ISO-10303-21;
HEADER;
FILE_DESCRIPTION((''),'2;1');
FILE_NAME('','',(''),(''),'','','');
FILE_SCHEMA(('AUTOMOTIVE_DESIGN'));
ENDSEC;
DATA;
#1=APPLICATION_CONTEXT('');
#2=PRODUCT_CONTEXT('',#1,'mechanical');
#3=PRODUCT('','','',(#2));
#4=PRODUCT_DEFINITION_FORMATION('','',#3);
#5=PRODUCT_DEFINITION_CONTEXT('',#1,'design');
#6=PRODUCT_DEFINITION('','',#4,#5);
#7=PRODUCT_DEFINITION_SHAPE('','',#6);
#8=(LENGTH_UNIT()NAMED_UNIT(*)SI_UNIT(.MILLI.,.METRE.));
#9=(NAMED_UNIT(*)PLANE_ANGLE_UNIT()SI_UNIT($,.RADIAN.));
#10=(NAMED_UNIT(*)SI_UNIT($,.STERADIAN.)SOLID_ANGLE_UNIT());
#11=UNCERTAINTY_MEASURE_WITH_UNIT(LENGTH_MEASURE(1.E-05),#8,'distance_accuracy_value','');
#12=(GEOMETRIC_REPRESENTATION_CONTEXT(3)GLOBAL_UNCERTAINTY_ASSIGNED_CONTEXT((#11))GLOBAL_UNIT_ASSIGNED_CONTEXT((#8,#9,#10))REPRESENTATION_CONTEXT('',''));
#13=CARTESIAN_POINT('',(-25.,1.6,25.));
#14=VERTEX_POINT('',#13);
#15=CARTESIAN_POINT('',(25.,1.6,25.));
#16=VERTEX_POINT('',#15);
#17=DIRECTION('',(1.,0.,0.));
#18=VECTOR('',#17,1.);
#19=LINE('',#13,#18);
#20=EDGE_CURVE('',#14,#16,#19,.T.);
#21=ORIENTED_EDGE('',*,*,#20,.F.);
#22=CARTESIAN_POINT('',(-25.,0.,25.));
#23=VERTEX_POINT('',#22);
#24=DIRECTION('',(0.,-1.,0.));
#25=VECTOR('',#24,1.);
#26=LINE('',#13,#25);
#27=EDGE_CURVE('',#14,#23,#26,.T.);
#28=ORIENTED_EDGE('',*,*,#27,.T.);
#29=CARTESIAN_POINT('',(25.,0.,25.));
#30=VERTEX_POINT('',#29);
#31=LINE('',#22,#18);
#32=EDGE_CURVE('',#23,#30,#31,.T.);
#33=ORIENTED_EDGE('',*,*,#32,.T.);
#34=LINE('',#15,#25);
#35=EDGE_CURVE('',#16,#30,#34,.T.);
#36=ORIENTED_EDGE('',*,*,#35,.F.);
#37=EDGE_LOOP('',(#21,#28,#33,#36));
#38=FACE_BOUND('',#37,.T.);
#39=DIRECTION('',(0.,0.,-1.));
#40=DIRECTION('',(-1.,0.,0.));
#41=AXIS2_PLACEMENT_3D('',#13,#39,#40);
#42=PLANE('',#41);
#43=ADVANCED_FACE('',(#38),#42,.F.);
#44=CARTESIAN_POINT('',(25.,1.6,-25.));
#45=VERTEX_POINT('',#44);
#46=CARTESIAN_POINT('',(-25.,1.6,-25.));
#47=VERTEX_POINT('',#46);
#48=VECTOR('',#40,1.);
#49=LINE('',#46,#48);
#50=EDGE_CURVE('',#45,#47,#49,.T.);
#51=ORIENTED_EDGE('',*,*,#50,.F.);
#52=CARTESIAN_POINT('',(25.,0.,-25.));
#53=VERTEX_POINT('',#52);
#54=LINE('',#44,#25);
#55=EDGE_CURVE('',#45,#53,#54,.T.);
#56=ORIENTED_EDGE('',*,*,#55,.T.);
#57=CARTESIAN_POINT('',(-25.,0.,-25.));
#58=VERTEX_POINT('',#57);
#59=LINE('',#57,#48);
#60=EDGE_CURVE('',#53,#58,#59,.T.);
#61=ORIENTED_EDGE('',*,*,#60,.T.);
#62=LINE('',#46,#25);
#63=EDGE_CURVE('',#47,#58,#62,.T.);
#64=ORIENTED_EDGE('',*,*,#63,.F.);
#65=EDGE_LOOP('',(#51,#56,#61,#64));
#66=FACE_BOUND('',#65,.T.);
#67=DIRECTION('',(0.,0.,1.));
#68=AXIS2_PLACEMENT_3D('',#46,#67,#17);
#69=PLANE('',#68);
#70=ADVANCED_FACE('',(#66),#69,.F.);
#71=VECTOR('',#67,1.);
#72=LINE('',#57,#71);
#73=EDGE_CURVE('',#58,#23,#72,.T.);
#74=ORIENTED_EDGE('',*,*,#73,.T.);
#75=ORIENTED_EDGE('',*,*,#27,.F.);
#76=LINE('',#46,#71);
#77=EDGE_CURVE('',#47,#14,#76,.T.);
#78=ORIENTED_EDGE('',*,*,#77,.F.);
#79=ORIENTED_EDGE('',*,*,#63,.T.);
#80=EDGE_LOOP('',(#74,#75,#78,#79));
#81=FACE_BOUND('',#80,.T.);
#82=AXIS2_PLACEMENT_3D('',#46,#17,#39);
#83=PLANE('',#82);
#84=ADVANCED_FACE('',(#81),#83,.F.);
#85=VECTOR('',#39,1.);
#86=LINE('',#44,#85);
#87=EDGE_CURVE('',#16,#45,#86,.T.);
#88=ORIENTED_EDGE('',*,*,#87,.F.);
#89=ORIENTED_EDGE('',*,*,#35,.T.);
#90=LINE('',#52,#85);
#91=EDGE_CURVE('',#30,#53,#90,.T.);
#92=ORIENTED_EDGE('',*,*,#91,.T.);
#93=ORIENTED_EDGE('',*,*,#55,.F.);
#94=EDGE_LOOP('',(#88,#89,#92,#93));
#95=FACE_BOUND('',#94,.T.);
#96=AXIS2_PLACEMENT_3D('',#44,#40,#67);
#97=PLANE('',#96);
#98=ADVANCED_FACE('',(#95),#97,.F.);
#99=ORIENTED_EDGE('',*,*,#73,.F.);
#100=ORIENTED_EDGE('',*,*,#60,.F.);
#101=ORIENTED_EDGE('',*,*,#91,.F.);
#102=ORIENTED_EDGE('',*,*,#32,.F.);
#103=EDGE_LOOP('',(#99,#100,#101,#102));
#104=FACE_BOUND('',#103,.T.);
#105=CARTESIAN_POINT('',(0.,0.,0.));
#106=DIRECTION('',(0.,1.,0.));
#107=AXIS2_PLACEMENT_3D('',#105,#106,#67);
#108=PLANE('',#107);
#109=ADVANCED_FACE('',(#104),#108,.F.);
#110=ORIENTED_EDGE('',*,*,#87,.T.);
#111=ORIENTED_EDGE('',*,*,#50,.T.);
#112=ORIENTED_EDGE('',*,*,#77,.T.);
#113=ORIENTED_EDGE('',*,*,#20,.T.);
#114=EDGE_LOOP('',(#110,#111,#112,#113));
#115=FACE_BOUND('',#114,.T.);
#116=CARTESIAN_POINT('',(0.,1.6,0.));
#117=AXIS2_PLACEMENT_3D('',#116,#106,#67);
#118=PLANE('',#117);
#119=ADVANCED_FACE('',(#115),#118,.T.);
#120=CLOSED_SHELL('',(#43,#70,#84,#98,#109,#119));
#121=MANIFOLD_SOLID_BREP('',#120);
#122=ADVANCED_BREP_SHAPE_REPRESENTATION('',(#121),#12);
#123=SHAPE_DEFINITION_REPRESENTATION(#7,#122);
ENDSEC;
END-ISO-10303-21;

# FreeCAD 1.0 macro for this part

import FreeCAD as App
import Part
import Sketcher

V = App.Vector
Q = App.Units.Quantity

doc = App.newDocument("Part")
body = doc.addObject("PartDesign::Body", "Body")

# Sketch on XZ plane
sketch1 = body.newObject("Sketcher::SketchObject", "Sketch")
sketch1.AttachmentSupport = (doc.getObject("XZ_Plane"), [""])
sketch1.MapMode = "FlatFace"
sketch1.addGeometry([
    Part.LineSegment(V(-25, -25, 0), V(-25, 25, 0)),
    Part.LineSegment(V(-25, 25, 0), V(25, 25, 0)),
    Part.LineSegment(V(25, 25, 0), V(25, -25, 0)),
    Part.LineSegment(V(25, -25, 0), V(-25, -25, 0)),
], False)
sketch1.addConstraint([
    Sketcher.Constraint("Coincident", 0, 2, 1, 1),
    Sketcher.Constraint("Coincident", 1, 2, 2, 1),
    Sketcher.Constraint("Coincident", 2, 2, 3, 1),
    Sketcher.Constraint("Coincident", 3, 2, 0, 1),
    Sketcher.Constraint("Vertical", 0),
    Sketcher.Constraint("Horizontal", 1),
    Sketcher.Constraint("Vertical", 2),
    Sketcher.Constraint("Horizontal", 3),
    Sketcher.Constraint("Symmetric", 0, 2, 2, 2, -1, 1),
    Sketcher.Constraint("Equal", 3, 0),
    Sketcher.Constraint("DistanceX", 1, 1, 1, 2, Q("50 mm")),
])
pad1 = body.newObject("PartDesign::Pad", "Pad")
pad1.Profile = sketch1
pad1.Length = 1.6
pad1.Reversed = True

doc.recompute()
